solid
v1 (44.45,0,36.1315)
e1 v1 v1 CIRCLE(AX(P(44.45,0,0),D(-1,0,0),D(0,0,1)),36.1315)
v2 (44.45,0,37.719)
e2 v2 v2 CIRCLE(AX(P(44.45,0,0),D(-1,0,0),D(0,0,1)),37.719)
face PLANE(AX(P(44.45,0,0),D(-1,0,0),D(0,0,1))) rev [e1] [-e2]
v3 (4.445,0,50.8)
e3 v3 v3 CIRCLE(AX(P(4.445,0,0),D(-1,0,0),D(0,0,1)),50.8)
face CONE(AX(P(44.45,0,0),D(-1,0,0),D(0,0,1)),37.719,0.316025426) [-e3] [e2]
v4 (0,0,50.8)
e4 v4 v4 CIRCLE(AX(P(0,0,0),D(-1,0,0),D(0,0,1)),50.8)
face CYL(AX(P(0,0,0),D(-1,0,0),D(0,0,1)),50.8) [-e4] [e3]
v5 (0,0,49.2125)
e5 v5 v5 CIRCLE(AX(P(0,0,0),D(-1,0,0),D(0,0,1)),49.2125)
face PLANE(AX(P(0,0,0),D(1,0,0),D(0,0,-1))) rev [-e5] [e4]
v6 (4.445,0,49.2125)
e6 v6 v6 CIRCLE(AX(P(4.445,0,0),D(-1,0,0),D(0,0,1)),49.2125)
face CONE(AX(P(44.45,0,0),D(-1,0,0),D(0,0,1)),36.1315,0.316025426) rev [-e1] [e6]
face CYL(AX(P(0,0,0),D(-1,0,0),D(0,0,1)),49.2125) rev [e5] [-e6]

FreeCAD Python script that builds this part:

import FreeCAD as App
import Part
import Sketcher
from FreeCAD import Vector
Q = App.Units.Quantity


def add_polygon(sketch, points):
    """Adds a closed chain of lines whose ends are joined by coincident constraints."""
    first, n = sketch.GeometryCount, len(points)
    for a, b in zip(points, points[1:] + points[:1]):
        sketch.addGeometry(Part.LineSegment(App.Vector(*a, 0), App.Vector(*b, 0)), False)
    for i in range(n):
        sketch.addConstraint(Sketcher.Constraint("Coincident", first + i, 2, first + (i + 1) % n, 1))

doc = App.newDocument("Part")
body = doc.addObject("PartDesign::Body", "Body")

# Sketch on XY plane
sketch1 = body.newObject("Sketcher::SketchObject", "Sketch")
sketch1.AttachmentSupport = (doc.getObject("XY_Plane"), [""])
sketch1.MapMode = "FlatFace"
add_polygon(sketch1, [(0, 50.8), (0, 0), (44.45, 0), (44.45, 37.719), (4.445, 50.8)])  # lines 0-4
sketch1.addConstraint(Sketcher.Constraint("Vertical", 0))
sketch1.addConstraint(Sketcher.Constraint("Horizontal", 1))
sketch1.addConstraint(Sketcher.Constraint("Vertical", 2))
sketch1.addConstraint(Sketcher.Constraint("Horizontal", 4))
sketch1.addConstraint(Sketcher.Constraint("Coincident", 0, 2, -1, 1))
sketch1.addConstraint(Sketcher.Constraint("DistanceY", 0, 2, 0, 1, Q("2 in")))
sketch1.addConstraint(Sketcher.Constraint("DistanceX", 1, 1, 1, 2, Q("1.75 in")))
sketch1.addConstraint(Sketcher.Constraint("DistanceX", 4, 2, 4, 1, Q("0.175 in")))
sketch1.addConstraint(Sketcher.Constraint("DistanceY", 2, 1, 2, 2, Q("1.485 in")))
revolution = body.newObject("PartDesign::Revolution", "Revolution")
revolution.Profile = sketch1
revolution.ReferenceAxis = (sketch1, ["H_Axis"])
revolution.Angle = 360

# Sketch on XY plane
sketch2 = body.newObject("Sketcher::SketchObject", "Sketch001")
sketch2.AttachmentSupport = (doc.getObject("XY_Plane"), [""])
sketch2.MapMode = "FlatFace"
add_polygon(sketch2, [(0, 49.2125), (0, 0), (44.45, 0), (44.45, 36.1315), (4.445, 49.2125)])  # lines 0-4
sketch2.addConstraint(Sketcher.Constraint("Vertical", 0))
sketch2.addConstraint(Sketcher.Constraint("Horizontal", 1))
sketch2.addConstraint(Sketcher.Constraint("Vertical", 2))
sketch2.addConstraint(Sketcher.Constraint("Horizontal", 4))
sketch2.addConstraint(Sketcher.Constraint("Coincident", 0, 2, -1, 1))
sketch2.addConstraint(Sketcher.Constraint("DistanceX", 1, 1, 1, 2, Q("1.75 in")))
sketch2.addConstraint(Sketcher.Constraint("DistanceX", 4, 2, 4, 1, Q("0.175 in")))
sketch2.addConstraint(Sketcher.Constraint("DistanceY", 0, 2, 0, 1, Q("1.9375 in")))
sketch2.addConstraint(Sketcher.Constraint("DistanceY", 2, 1, 2, 2, Q("1.4225 in")))
groove = body.newObject("PartDesign::Groove", "Groove")
groove.Profile = sketch2
groove.ReferenceAxis = (sketch2, ["H_Axis"])
groove.Angle = 360

doc.recompute()
